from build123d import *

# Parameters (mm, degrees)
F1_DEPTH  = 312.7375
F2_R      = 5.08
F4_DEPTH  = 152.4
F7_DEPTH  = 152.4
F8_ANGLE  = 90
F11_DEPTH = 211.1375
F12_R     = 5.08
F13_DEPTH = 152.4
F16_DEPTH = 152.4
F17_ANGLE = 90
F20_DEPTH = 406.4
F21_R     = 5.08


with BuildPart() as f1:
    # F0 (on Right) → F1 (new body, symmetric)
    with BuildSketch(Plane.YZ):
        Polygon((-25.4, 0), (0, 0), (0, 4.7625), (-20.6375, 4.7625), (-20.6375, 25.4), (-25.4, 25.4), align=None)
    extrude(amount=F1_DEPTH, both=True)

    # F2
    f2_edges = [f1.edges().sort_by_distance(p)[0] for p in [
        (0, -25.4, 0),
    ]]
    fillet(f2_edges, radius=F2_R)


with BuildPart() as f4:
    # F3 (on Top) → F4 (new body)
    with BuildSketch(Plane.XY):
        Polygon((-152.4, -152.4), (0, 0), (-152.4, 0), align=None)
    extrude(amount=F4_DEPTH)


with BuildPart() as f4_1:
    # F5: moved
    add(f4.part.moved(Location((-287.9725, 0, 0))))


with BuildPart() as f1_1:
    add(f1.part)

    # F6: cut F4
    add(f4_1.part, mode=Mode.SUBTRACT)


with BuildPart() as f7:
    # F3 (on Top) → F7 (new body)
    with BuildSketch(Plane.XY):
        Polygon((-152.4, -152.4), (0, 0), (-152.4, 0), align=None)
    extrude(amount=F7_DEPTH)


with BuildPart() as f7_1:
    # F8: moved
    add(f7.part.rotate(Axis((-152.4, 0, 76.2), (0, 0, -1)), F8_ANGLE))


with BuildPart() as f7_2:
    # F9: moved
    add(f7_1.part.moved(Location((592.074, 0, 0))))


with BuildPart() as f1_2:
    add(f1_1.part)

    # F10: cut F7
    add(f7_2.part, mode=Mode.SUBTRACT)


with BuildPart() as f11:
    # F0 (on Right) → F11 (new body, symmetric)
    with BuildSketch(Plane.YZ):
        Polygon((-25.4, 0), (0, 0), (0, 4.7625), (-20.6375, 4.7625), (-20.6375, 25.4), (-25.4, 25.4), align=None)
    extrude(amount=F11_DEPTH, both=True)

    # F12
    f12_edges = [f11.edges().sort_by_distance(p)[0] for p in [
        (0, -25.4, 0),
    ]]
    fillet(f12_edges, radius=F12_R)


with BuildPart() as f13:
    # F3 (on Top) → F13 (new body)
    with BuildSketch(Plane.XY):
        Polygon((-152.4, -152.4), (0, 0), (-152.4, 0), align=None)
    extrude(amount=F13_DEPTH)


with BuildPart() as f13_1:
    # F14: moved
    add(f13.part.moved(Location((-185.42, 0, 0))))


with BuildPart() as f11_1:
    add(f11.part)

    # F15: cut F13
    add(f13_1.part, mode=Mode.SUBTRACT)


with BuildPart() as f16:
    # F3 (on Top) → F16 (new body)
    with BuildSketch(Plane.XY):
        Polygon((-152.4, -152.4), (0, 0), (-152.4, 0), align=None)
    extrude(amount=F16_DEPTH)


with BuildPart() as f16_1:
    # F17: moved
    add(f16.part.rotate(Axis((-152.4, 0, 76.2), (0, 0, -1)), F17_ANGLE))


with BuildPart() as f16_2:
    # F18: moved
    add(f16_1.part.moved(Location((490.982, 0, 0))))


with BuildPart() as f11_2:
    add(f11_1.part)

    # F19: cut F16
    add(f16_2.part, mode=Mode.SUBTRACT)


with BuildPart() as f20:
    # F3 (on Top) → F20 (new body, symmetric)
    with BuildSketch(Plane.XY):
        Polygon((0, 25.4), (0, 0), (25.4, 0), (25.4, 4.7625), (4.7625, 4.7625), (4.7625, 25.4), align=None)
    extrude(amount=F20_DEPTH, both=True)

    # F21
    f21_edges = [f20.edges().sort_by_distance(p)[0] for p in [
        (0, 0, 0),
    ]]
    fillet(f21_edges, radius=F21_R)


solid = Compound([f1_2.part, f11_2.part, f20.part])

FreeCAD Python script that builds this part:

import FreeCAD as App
import Part
import Sketcher
from FreeCAD import Vector
Q = App.Units.Quantity


def edges_at(feature, points):
    """Names of the edges that pass closest to the given points."""
    edges = feature.Shape.Edges
    near = lambda p: min(range(len(edges)), key=lambda i: edges[i].distToShape(Part.Vertex(*p))[0])
    return sorted({f"Edge{near(p) + 1}" for p in points})


def add_polygon(sketch, points):
    """Adds a closed chain of lines whose ends are joined by coincident constraints."""
    first, n = sketch.GeometryCount, len(points)
    for a, b in zip(points, points[1:] + points[:1]):
        sketch.addGeometry(Part.LineSegment(App.Vector(*a, 0), App.Vector(*b, 0)), False)
    for i in range(n):
        sketch.addConstraint(Sketcher.Constraint("Coincident", first + i, 2, first + (i + 1) % n, 1))

doc = App.newDocument("Part")
body = doc.addObject("PartDesign::Body", "Body")

sketch1 = doc.addObject("Sketcher::SketchObject", "Sketch")
body.addObject(sketch1)
sketch1.AttachmentSupport = (doc.YZ_Plane, [""])
sketch1.MapMode = "FlatFace"
add_polygon(sketch1, [(-25.4, 0), (0, 0), (0, 4.7625), (-20.6375, 4.7625), (-20.6375, 25.4), (-25.4, 25.4)])
sketch1.addConstraint(Sketcher.Constraint("Horizontal", 0))
sketch1.addConstraint(Sketcher.Constraint("Vertical", 1))
sketch1.addConstraint(Sketcher.Constraint("Horizontal", 2))
sketch1.addConstraint(Sketcher.Constraint("Vertical", 3))
sketch1.addConstraint(Sketcher.Constraint("Horizontal", 4))
sketch1.addConstraint(Sketcher.Constraint("Vertical", 5))
sketch1.addConstraint(Sketcher.Constraint("Coincident", 0, 2, -1, 1))
sketch1.addConstraint(Sketcher.Constraint("Equal", 4, 1))
sketch1.addConstraint(Sketcher.Constraint("Equal", 2, 3))
sketch1.addConstraint(Sketcher.Constraint("DistanceX", 0, 1, 0, 2, Q("1 in")))
sketch1.addConstraint(Sketcher.Constraint("DistanceX", 2, 2, 2, 1, Q("0.8125 in")))
pad1 = doc.addObject("PartDesign::Pad", "Pad")
body.addObject(pad1)
pad1.Profile = sketch1
pad1.Length = Q("24.625 in")
pad1.Midplane = True
doc.recompute()

fillet = doc.addObject("PartDesign::Fillet", "Fillet")
body.addObject(fillet)
fillet.Base = (pad1, edges_at(pad1, [(0, -25.4, 0)]))
fillet.Radius = Q("0.2 in")
body2 = doc.addObject("PartDesign::Body", "Body001")

sketch2 = doc.addObject("Sketcher::SketchObject", "Sketch001")
body2.addObject(sketch2)
sketch2.AttachmentSupport = (doc.getObject("XY_Plane001"), [""])
sketch2.MapMode = "FlatFace"
add_polygon(sketch2, [(-152.4, -152.4), (0, 0), (-152.4, 0)])
sketch2.addConstraint(Sketcher.Constraint("Horizontal", 1))
sketch2.addConstraint(Sketcher.Constraint("Vertical", 2))
sketch2.addConstraint(Sketcher.Constraint("Coincident", 0, 2, -1, 1))
sketch2.addConstraint(Sketcher.Constraint("Equal", 1, 2))
sketch2.addConstraint(Sketcher.Constraint("DistanceX", 1, 2, 1, 1, Q("6 in")))
pad2 = doc.addObject("PartDesign::Pad", "Pad001")
body2.addObject(pad2)
pad2.Profile = sketch2
pad2.Length = Q("6 in")
body3 = doc.addObject("PartDesign::Body", "Body002")
doc.recompute()

body2.Placement = App.Placement(Vector(-287.9725, 0, 0), App.Rotation(Vector(0, 0, 1), 0))
boolean = doc.addObject("PartDesign::Boolean", "Boolean")
body3.addObject(boolean)
boolean.Type = "Fuse"
boolean.addObjects([body2])
doc.recompute()

boolean2 = doc.addObject("PartDesign::Boolean", "Boolean001")
body.addObject(boolean2)
boolean2.Type = "Cut"
boolean2.addObjects([body3])
body4 = doc.addObject("PartDesign::Body", "Body003")

sketch3 = doc.addObject("Sketcher::SketchObject", "Sketch002")
body4.addObject(sketch3)
sketch3.AttachmentSupport = (doc.getObject("XY_Plane003"), [""])
sketch3.MapMode = "FlatFace"
add_polygon(sketch3, [(-152.4, -152.4), (0, 0), (-152.4, 0)])
sketch3.addConstraint(Sketcher.Constraint("Horizontal", 1))
sketch3.addConstraint(Sketcher.Constraint("Vertical", 2))
sketch3.addConstraint(Sketcher.Constraint("Coincident", 0, 2, -1, 1))
sketch3.addConstraint(Sketcher.Constraint("Equal", 1, 2))
sketch3.addConstraint(Sketcher.Constraint("DistanceX", 1, 2, 1, 1, Q("6 in")))
pad3 = doc.addObject("PartDesign::Pad", "Pad002")
body4.addObject(pad3)
pad3.Profile = sketch3
pad3.Length = Q("6 in")
body5 = doc.addObject("PartDesign::Body", "Body004")
doc.recompute()

body4.Placement = App.Placement(Vector(-152.4, -152.4, 0), App.Rotation(Vector(0, 0, -1), 90))
boolean3 = doc.addObject("PartDesign::Boolean", "Boolean002")
body5.addObject(boolean3)
boolean3.Type = "Fuse"
boolean3.addObjects([body4])
body6 = doc.addObject("PartDesign::Body", "Body005")
doc.recompute()

body5.Placement = App.Placement(Vector(592.074, 0, 0), App.Rotation(Vector(0, 0, 1), 0))
boolean4 = doc.addObject("PartDesign::Boolean", "Boolean003")
body6.addObject(boolean4)
boolean4.Type = "Fuse"
boolean4.addObjects([body5])
doc.recompute()

boolean5 = doc.addObject("PartDesign::Boolean", "Boolean004")
body.addObject(boolean5)
boolean5.Type = "Cut"
boolean5.addObjects([body6])
body7 = doc.addObject("PartDesign::Body", "Body006")

sketch4 = doc.addObject("Sketcher::SketchObject", "Sketch003")
body7.addObject(sketch4)
sketch4.AttachmentSupport = (doc.getObject("YZ_Plane006"), [""])
sketch4.MapMode = "FlatFace"
add_polygon(sketch4, [(-25.4, 0), (0, 0), (0, 4.7625), (-20.6375, 4.7625), (-20.6375, 25.4), (-25.4, 25.4)])
sketch4.addConstraint(Sketcher.Constraint("Horizontal", 0))
sketch4.addConstraint(Sketcher.Constraint("Vertical", 1))
sketch4.addConstraint(Sketcher.Constraint("Horizontal", 2))
sketch4.addConstraint(Sketcher.Constraint("Vertical", 3))
sketch4.addConstraint(Sketcher.Constraint("Horizontal", 4))
sketch4.addConstraint(Sketcher.Constraint("Vertical", 5))
sketch4.addConstraint(Sketcher.Constraint("Coincident", 0, 2, -1, 1))
sketch4.addConstraint(Sketcher.Constraint("Equal", 4, 1))
sketch4.addConstraint(Sketcher.Constraint("Equal", 2, 3))
sketch4.addConstraint(Sketcher.Constraint("DistanceX", 0, 1, 0, 2, Q("1 in")))
sketch4.addConstraint(Sketcher.Constraint("DistanceX", 2, 2, 2, 1, Q("0.8125 in")))
pad4 = doc.addObject("PartDesign::Pad", "Pad003")
body7.addObject(pad4)
pad4.Profile = sketch4
pad4.Length = Q("16.625 in")
pad4.Midplane = True
doc.recompute()

fillet2 = doc.addObject("PartDesign::Fillet", "Fillet001")
body7.addObject(fillet2)
fillet2.Base = (pad4, edges_at(pad4, [(0, -25.4, 0)]))
fillet2.Radius = Q("0.2 in")
body8 = doc.addObject("PartDesign::Body", "Body007")

sketch5 = doc.addObject("Sketcher::SketchObject", "Sketch004")
body8.addObject(sketch5)
sketch5.AttachmentSupport = (doc.getObject("XY_Plane007"), [""])
sketch5.MapMode = "FlatFace"
add_polygon(sketch5, [(-152.4, -152.4), (0, 0), (-152.4, 0)])
sketch5.addConstraint(Sketcher.Constraint("Horizontal", 1))
sketch5.addConstraint(Sketcher.Constraint("Vertical", 2))
sketch5.addConstraint(Sketcher.Constraint("Coincident", 0, 2, -1, 1))
sketch5.addConstraint(Sketcher.Constraint("Equal", 1, 2))
sketch5.addConstraint(Sketcher.Constraint("DistanceX", 1, 2, 1, 1, Q("6 in")))
pad5 = doc.addObject("PartDesign::Pad", "Pad004")
body8.addObject(pad5)
pad5.Profile = sketch5
pad5.Length = Q("6 in")
body9 = doc.addObject("PartDesign::Body", "Body008")
doc.recompute()

body8.Placement = App.Placement(Vector(-185.42, 0, 0), App.Rotation(Vector(0, 0, 1), 0))
boolean6 = doc.addObject("PartDesign::Boolean", "Boolean005")
body9.addObject(boolean6)
boolean6.Type = "Fuse"
boolean6.addObjects([body8])
doc.recompute()

boolean7 = doc.addObject("PartDesign::Boolean", "Boolean006")
body7.addObject(boolean7)
boolean7.Type = "Cut"
boolean7.addObjects([body9])
body10 = doc.addObject("PartDesign::Body", "Body009")

sketch6 = doc.addObject("Sketcher::SketchObject", "Sketch005")
body10.addObject(sketch6)
sketch6.AttachmentSupport = (doc.getObject("XY_Plane009"), [""])
sketch6.MapMode = "FlatFace"
add_polygon(sketch6, [(-152.4, -152.4), (0, 0), (-152.4, 0)])
sketch6.addConstraint(Sketcher.Constraint("Horizontal", 1))
sketch6.addConstraint(Sketcher.Constraint("Vertical", 2))
sketch6.addConstraint(Sketcher.Constraint("Coincident", 0, 2, -1, 1))
sketch6.addConstraint(Sketcher.Constraint("Equal", 1, 2))
sketch6.addConstraint(Sketcher.Constraint("DistanceX", 1, 2, 1, 1, Q("6 in")))
pad6 = doc.addObject("PartDesign::Pad", "Pad005")
body10.addObject(pad6)
pad6.Profile = sketch6
pad6.Length = Q("6 in")
body11 = doc.addObject("PartDesign::Body", "Body010")
doc.recompute()

body10.Placement = App.Placement(Vector(-152.4, -152.4, 0), App.Rotation(Vector(0, 0, -1), 90))
boolean8 = doc.addObject("PartDesign::Boolean", "Boolean007")
body11.addObject(boolean8)
boolean8.Type = "Fuse"
boolean8.addObjects([body10])
body12 = doc.addObject("PartDesign::Body", "Body011")
doc.recompute()

body11.Placement = App.Placement(Vector(490.982, 0, 0), App.Rotation(Vector(0, 0, 1), 0))
boolean9 = doc.addObject("PartDesign::Boolean", "Boolean008")
body12.addObject(boolean9)
boolean9.Type = "Fuse"
boolean9.addObjects([body11])
doc.recompute()

boolean10 = doc.addObject("PartDesign::Boolean", "Boolean009")
body7.addObject(boolean10)
boolean10.Type = "Cut"
boolean10.addObjects([body12])
body13 = doc.addObject("PartDesign::Body", "Body012")

sketch7 = doc.addObject("Sketcher::SketchObject", "Sketch006")
body13.addObject(sketch7)
sketch7.AttachmentSupport = (doc.getObject("XY_Plane012"), [""])
sketch7.MapMode = "FlatFace"
add_polygon(sketch7, [(0, 25.4), (0, 0), (25.4, 0), (25.4, 4.7625), (4.7625, 4.7625), (4.7625, 25.4)])
sketch7.addConstraint(Sketcher.Constraint("Vertical", 0))
sketch7.addConstraint(Sketcher.Constraint("Horizontal", 1))
sketch7.addConstraint(Sketcher.Constraint("Vertical", 2))
sketch7.addConstraint(Sketcher.Constraint("Horizontal", 3))
sketch7.addConstraint(Sketcher.Constraint("Vertical", 4))
sketch7.addConstraint(Sketcher.Constraint("Horizontal", 5))
sketch7.addConstraint(Sketcher.Constraint("Coincident", 0, 2, -1, 1))
sketch7.addConstraint(Sketcher.Constraint("Equal", 1, 0))
sketch7.addConstraint(Sketcher.Constraint("Equal", 5, 2))
sketch7.addConstraint(Sketcher.Constraint("DistanceX", 1, 1, 1, 2, Q("1 in")))
sketch7.addConstraint(Sketcher.Constraint("DistanceX", 3, 2, 3, 1, Q("0.8125 in")))
pad7 = doc.addObject("PartDesign::Pad", "Pad006")
body13.addObject(pad7)
pad7.Profile = sketch7
pad7.Length = Q("32 in")
pad7.Midplane = True
doc.recompute()

fillet3 = doc.addObject("PartDesign::Fillet", "Fillet002")
body13.addObject(fillet3)
fillet3.Base = (pad7, edges_at(pad7, [(0, 0, 0)]))
fillet3.Radius = Q("0.2 in")

doc.recompute()
